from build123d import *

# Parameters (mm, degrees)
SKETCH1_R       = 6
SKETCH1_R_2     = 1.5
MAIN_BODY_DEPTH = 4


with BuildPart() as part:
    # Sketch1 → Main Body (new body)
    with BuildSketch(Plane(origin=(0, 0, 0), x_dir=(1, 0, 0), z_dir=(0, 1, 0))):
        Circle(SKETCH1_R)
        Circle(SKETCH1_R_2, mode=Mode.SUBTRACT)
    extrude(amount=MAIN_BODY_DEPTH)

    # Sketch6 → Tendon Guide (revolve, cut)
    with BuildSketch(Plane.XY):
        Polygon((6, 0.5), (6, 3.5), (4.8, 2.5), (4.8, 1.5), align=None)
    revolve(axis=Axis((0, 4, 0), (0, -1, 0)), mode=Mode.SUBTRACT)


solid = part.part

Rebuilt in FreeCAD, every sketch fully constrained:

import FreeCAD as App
import Part
import Sketcher
from FreeCAD import Vector
Q = App.Units.Quantity

doc = App.newDocument("Part")
body = doc.addObject("PartDesign::Body", "Body")

# Sketch on XZ plane
sketch1 = doc.addObject("Sketcher::SketchObject", "Sketch")
body.addObject(sketch1)
sketch1.AttachmentSupport = (doc.XZ_Plane, [""])
sketch1.MapMode = "FlatFace"
sketch1.addGeometry([
    Part.Circle(Vector(0, 0, 0), Vector(0, 0, 1), 6),
    Part.Circle(Vector(0, 0, 0), Vector(0, 0, 1), 1.5),
], False)
sketch1.addConstraint([
    Sketcher.Constraint("Coincident", 0, 3, -1, 1),
    Sketcher.Constraint("Coincident", 1, 3, -1, 1),
    Sketcher.Constraint("Diameter", 0, Q("12 mm")),
    Sketcher.Constraint("Diameter", 1, Q("3 mm")),
])
pad1 = doc.addObject("PartDesign::Pad", "Pad")
body.addObject(pad1)
pad1.Profile = sketch1
pad1.Length = 4
pad1.Reversed = True

# Sketch on XY plane
sketch2 = doc.addObject("Sketcher::SketchObject", "Sketch001")
body.addObject(sketch2)
sketch2.AttachmentSupport = (doc.XY_Plane, [""])
sketch2.MapMode = "FlatFace"
sketch2.addGeometry([
    Part.LineSegment(Vector(6, 0.5, 0), Vector(6, 3.5, 0)),
    Part.LineSegment(Vector(6, 3.5, 0), Vector(4.8, 2.5, 0)),
    Part.LineSegment(Vector(4.8, 2.5, 0), Vector(4.8, 1.5, 0)),
    Part.LineSegment(Vector(4.8, 1.5, 0), Vector(6, 0.5, 0)),
], False)
sketch2.addConstraint([
    Sketcher.Constraint("Coincident", 0, 2, 1, 1),
    Sketcher.Constraint("Coincident", 1, 2, 2, 1),
    Sketcher.Constraint("Coincident", 2, 2, 3, 1),
    Sketcher.Constraint("Coincident", 3, 2, 0, 1),
    Sketcher.Constraint("Vertical", 0),
    Sketcher.Constraint("Vertical", 2),
    Sketcher.Constraint("Equal", 1, 3),
    Sketcher.Constraint("DistanceY", 0, 1, 0, 2, Q("3 mm")),
    Sketcher.Constraint("DistanceY", 2, 2, 2, 1, Q("1 mm")),
    Sketcher.Constraint("DistanceX", -1, 1, 0, 2, Q("6 mm")),
    Sketcher.Constraint("DistanceY", -1, 1, 0, 2, Q("3.5 mm")),
    Sketcher.Constraint("DistanceX", -1, 1, 1, 2, Q("4.8 mm")),
])
groove = doc.addObject("PartDesign::Groove", "Groove")
body.addObject(groove)
groove.Profile = sketch2
groove.ReferenceAxis = (sketch2, ["V_Axis"])
groove.Angle = 360

doc.recompute()
